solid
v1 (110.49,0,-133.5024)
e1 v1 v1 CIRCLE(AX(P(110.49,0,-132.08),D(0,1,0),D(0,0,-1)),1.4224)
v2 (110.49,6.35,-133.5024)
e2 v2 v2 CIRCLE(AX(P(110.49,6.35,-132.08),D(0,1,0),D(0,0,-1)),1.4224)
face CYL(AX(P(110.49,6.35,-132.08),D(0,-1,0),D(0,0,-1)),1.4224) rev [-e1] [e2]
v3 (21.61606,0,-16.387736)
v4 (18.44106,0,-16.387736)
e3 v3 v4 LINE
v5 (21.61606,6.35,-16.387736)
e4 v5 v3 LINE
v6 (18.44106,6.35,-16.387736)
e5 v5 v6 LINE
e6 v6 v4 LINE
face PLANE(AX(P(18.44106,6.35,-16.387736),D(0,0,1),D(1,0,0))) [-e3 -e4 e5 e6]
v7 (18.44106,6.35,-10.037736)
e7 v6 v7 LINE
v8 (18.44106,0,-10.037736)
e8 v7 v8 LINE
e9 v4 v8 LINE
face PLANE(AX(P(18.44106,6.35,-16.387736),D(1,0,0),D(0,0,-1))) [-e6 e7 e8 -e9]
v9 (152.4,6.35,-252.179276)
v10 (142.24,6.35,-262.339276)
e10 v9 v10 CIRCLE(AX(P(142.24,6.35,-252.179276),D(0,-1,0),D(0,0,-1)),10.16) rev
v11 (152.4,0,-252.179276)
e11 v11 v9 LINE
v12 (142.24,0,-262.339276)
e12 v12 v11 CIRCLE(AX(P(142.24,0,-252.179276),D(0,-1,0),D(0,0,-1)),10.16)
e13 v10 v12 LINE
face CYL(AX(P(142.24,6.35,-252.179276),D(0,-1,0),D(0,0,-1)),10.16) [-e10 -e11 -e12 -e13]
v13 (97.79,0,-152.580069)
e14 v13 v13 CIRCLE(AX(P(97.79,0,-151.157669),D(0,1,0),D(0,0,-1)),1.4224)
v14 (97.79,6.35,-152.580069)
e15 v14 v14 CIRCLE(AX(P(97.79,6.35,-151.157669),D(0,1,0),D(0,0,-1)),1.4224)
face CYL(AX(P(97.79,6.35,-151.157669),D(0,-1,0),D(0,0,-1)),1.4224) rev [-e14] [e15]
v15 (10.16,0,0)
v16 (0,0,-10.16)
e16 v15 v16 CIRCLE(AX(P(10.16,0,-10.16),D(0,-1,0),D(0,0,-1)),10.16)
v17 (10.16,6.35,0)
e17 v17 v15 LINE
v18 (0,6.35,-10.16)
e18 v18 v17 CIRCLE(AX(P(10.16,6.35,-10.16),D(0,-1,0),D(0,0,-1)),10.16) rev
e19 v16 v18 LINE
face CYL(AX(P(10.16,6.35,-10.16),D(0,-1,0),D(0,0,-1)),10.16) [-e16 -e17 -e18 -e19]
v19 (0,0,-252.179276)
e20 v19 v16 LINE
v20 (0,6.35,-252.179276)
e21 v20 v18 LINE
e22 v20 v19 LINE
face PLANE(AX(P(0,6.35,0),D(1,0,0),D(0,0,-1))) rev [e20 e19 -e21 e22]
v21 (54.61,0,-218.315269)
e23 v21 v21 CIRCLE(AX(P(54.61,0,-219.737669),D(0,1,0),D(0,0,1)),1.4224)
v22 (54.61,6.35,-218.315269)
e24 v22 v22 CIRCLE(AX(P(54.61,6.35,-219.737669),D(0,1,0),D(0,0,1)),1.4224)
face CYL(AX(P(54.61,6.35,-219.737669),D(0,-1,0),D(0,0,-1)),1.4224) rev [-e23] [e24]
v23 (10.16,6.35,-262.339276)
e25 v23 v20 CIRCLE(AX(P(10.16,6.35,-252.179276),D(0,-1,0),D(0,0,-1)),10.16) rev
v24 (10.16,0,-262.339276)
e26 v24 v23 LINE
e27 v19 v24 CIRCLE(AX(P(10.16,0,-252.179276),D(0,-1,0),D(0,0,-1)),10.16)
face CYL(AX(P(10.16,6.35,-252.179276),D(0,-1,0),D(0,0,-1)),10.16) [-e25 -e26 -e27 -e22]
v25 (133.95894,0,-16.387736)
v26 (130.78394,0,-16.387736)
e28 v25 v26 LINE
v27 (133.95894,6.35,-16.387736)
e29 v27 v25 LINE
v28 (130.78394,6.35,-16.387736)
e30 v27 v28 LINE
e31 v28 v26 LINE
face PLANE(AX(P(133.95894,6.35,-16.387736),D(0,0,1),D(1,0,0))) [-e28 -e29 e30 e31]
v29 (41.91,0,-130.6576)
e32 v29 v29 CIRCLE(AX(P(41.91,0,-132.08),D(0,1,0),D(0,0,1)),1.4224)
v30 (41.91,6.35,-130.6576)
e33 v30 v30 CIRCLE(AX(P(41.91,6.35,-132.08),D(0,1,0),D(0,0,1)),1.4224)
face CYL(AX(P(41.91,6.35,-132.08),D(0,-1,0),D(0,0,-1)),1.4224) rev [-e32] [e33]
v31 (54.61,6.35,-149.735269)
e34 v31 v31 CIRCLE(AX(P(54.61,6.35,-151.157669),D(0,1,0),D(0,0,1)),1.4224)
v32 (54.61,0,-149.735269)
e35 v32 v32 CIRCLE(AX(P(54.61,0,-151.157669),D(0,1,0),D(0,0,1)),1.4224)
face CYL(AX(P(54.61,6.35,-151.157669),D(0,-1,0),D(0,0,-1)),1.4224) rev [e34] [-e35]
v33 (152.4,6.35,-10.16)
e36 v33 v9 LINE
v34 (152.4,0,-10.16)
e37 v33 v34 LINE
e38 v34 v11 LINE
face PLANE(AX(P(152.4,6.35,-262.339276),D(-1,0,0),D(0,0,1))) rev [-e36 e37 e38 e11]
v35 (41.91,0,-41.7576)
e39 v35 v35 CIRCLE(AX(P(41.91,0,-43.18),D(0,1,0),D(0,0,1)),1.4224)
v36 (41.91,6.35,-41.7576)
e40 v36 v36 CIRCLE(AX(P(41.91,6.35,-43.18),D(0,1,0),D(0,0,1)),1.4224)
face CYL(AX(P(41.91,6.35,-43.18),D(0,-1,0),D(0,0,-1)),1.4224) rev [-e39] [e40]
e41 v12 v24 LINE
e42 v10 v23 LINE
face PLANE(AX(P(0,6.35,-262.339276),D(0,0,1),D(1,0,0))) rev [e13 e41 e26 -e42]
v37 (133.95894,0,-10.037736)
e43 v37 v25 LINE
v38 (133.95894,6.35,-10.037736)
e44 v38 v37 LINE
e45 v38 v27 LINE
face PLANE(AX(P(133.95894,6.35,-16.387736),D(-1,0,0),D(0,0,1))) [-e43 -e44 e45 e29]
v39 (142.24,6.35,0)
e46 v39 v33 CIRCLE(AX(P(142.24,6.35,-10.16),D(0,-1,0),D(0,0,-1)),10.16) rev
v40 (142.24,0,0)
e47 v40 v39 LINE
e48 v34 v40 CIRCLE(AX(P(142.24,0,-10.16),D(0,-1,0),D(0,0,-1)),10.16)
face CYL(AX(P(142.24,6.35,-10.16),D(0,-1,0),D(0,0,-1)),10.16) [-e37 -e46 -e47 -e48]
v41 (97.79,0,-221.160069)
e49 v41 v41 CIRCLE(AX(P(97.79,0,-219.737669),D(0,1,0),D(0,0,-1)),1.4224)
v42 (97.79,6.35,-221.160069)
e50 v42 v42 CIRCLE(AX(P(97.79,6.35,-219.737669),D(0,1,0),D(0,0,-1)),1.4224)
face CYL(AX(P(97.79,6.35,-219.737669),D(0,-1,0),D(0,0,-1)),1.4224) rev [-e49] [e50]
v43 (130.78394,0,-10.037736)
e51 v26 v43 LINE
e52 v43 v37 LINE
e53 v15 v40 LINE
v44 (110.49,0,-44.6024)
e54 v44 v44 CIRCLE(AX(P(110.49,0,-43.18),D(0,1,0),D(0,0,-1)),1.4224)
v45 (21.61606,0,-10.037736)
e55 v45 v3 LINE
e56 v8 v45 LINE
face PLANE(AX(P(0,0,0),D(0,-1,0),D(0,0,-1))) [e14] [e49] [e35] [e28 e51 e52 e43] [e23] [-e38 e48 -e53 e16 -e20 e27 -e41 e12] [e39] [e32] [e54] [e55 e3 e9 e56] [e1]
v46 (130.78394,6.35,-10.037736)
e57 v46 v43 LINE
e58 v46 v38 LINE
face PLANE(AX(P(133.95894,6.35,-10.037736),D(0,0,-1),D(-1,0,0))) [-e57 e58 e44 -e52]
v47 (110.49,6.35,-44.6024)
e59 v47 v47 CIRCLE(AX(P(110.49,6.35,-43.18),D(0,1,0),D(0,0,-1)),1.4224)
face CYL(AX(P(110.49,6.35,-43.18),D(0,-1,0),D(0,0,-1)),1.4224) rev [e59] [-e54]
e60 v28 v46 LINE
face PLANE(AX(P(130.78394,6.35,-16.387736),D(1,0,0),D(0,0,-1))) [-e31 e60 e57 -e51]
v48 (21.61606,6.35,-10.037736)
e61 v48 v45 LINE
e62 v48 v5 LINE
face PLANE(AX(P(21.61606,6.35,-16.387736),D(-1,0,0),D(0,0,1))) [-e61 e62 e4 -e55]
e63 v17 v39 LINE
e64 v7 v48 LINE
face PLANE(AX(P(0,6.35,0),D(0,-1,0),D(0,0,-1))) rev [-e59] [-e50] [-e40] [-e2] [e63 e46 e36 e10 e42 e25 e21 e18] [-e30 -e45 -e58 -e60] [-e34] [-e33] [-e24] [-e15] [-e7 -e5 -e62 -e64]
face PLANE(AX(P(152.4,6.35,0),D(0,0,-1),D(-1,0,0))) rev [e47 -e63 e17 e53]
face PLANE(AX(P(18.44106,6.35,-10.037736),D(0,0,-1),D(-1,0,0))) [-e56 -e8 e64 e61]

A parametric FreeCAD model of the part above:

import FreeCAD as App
import Part
import Sketcher
Q = App.Units.Quantity


def edges_at(feature, points):
    """Names of the edges that pass closest to the given points."""
    edges = feature.Shape.Edges
    near = lambda p: min(range(len(edges)), key=lambda i: edges[i].distToShape(Part.Vertex(*p))[0])
    return sorted({f"Edge{near(p) + 1}" for p in points})


def add_polygon(sketch, points):
    """Adds a closed chain of lines whose ends are joined by coincident constraints."""
    first, n = sketch.GeometryCount, len(points)
    for a, b in zip(points, points[1:] + points[:1]):
        sketch.addGeometry(Part.LineSegment(App.Vector(*a, 0), App.Vector(*b, 0)), False)
    for i in range(n):
        sketch.addConstraint(Sketcher.Constraint("Coincident", first + i, 2, first + (i + 1) % n, 1))

doc = App.newDocument("Part")
body = doc.addObject("PartDesign::Body", "Body")

# Sketch on XZ plane
sketch1 = body.newObject("Sketcher::SketchObject", "Sketch")
sketch1.AttachmentSupport = (doc.getObject("XZ_Plane"), [""])
sketch1.MapMode = "FlatFace"
add_polygon(sketch1, [(0, -262.3), (0, 0), (152.4, 0), (152.4, -262.3)])  # lines 0-3
add_polygon(sketch1, [(21.6, -10), (18.4, -10), (18.4, -16.4), (21.6, -16.4)])  # lines 4-7
sketch1.addGeometry(Part.Circle(App.Vector(41.9, -43.2, 0), App.Vector(0, 0, 1), 1.4), False)  # 8
add_polygon(sketch1, [(134, -10), (130.8, -10), (130.8, -16.4), (134, -16.4)])  # lines 9-12
sketch1.addGeometry(Part.Circle(App.Vector(110.5, -43.2, 0), App.Vector(0, 0, 1), 1.4), False)  # 13
sketch1.addGeometry(Part.Circle(App.Vector(41.9, -132.1, 0), App.Vector(0, 0, 1), 1.4), False)  # 14
sketch1.addGeometry(Part.Circle(App.Vector(54.6, -151.2, 0), App.Vector(0, 0, 1), 1.4), False)  # 15
sketch1.addGeometry(Part.Circle(App.Vector(54.6, -219.7, 0), App.Vector(0, 0, 1), 1.4), False)  # 16
sketch1.addGeometry(Part.Circle(App.Vector(97.8, -151.2, 0), App.Vector(0, 0, 1), 1.4), False)  # 17
sketch1.addGeometry(Part.Circle(App.Vector(110.5, -132.1, 0), App.Vector(0, 0, 1), 1.4), False)  # 18
sketch1.addGeometry(Part.Circle(App.Vector(97.8, -219.7, 0), App.Vector(0, 0, 1), 1.4), False)  # 19
sketch1.addConstraint([
    Sketcher.Constraint("Vertical", 0),
    Sketcher.Constraint("Horizontal", 1),
    Sketcher.Constraint("Vertical", 2),
    Sketcher.Constraint("Horizontal", 3),
    Sketcher.Constraint("Horizontal", 4),
    Sketcher.Constraint("Vertical", 5),
    Sketcher.Constraint("Horizontal", 6),
    Sketcher.Constraint("Vertical", 7),
    Sketcher.Constraint("Horizontal", 9),
    Sketcher.Constraint("Vertical", 10),
    Sketcher.Constraint("Horizontal", 11),
    Sketcher.Constraint("Vertical", 12),
    Sketcher.Constraint("Coincident", 0, 2, -1, 1),
    Sketcher.Constraint("Equal", 8, 13),
    Sketcher.Constraint("Equal", 13, 14),
    Sketcher.Constraint("Equal", 14, 15),
    Sketcher.Constraint("Equal", 15, 16),
    Sketcher.Constraint("Equal", 16, 17),
    Sketcher.Constraint("Equal", 17, 18),
    Sketcher.Constraint("Equal", 18, 19),
    Sketcher.Constraint("Horizontal", 8, 3, 13, 3),
    Sketcher.Constraint("Horizontal", 15, 3, 17, 3),
    Sketcher.Constraint("Horizontal", 14, 3, 18, 3),
    Sketcher.Constraint("Horizontal", 16, 3, 19, 3),
    Sketcher.Constraint("Horizontal", 7, 2, 9, 2),
    Sketcher.Constraint("Horizontal", 6, 2, 10, 2),
    Sketcher.Constraint("Vertical", 8, 3, 14, 3),
    Sketcher.Constraint("Vertical", 15, 3, 16, 3),
    Sketcher.Constraint("Vertical", 13, 3, 18, 3),
    Sketcher.Constraint("Vertical", 17, 3, 19, 3),
    Sketcher.Constraint("Equal", 6, 9),
    Sketcher.Constraint("DistanceX", 1, 1, 1, 2, Q("6 in")),
    Sketcher.Constraint("Diameter", 8, Q("0.112 in")),
    Sketcher.Constraint("DistanceY", 5, 2, 5, 1, Q("0.25 in")),
    Sketcher.Constraint("DistanceY", 8, 3, -1, 1, Q("1.7 in")),
    Sketcher.Constraint("DistanceY", 14, 3, -1, 1, Q("5.2 in")),
    Sketcher.Constraint("DistanceX", 8, 3, 13, 3, Q("2.7 in")),
    Sketcher.Constraint("DistanceX", 14, 3, 15, 3, Q("0.5 in")),
    Sketcher.Constraint("DistanceY", 16, 3, 15, 3, Q("2.7 in")),
    Sketcher.Constraint("DistanceX", 15, 3, 17, 3, Q("1.7 in")),
    Sketcher.Constraint("DistanceX", 4, 2, 4, 1, Q("0.125 in")),
    Sketcher.Constraint("DistanceX", -1, 1, 8, 3, Q("1.65 in")),
    Sketcher.Constraint("DistanceY", 0, 1, 0, 2, 262.339276),
    Sketcher.Constraint("DistanceY", 15, 3, -1, 1, 151.157669),
    Sketcher.Constraint("DistanceX", -1, 1, 4, 2, 18.44106),
    Sketcher.Constraint("DistanceX", -1, 1, 9, 2, 130.78394),
    Sketcher.Constraint("DistanceY", 4, 2, -1, 1, 10.037736),
])
pad1 = body.newObject("PartDesign::Pad", "Pad")
pad1.Profile = sketch1
pad1.Length = Q("0.25 in")
pad1.Reversed = True
doc.recompute()

fillet = body.newObject("PartDesign::Fillet", "Fillet")
fillet.Base = (pad1, edges_at(pad1, [
    (0, 3.175, -262.339),
    (152.4, 3.175, -262.339),
    (152.4, 3.175, 0),
    (0, 3.175, 0),
]))
fillet.Radius = Q("0.4 in")

doc.recompute()
